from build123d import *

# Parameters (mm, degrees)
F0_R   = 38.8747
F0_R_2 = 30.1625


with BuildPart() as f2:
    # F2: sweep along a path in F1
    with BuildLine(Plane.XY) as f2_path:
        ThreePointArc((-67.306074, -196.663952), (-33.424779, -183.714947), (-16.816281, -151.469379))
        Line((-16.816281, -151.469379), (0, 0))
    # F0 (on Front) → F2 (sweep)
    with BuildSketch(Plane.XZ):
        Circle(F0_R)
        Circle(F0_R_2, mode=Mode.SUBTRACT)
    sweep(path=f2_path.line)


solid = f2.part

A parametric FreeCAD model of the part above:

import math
import FreeCAD as App
import Part
import Sketcher
Q = App.Units.Quantity

doc = App.newDocument("Part")
body = doc.addObject("PartDesign::Body", "Body")

# Sketch on XZ plane
sketch1 = doc.addObject("Sketcher::SketchObject", "Sketch")
body.addObject(sketch1)
sketch1.AttachmentSupport = (doc.XZ_Plane, [""])
sketch1.MapMode = "FlatFace"
sketch1.addGeometry(Part.Circle(App.Vector(0, 0, 0), App.Vector(0, 0, 1), 39), False)
sketch1.addGeometry(Part.Circle(App.Vector(0, 0, 0), App.Vector(0, 0, 1), 30), False)
sketch1.addConstraint(Sketcher.Constraint("Coincident", 0, 3, -1, 1))
sketch1.addConstraint(Sketcher.Constraint("Coincident", 1, 3, -1, 1))
sketch1.addConstraint(Sketcher.Constraint("Diameter", 0, Q("3.061 in")))
sketch1.addConstraint(Sketcher.Constraint("Diameter", 1, Q("2.375 in")))

# Sketch on XY plane
sketch2 = doc.addObject("Sketcher::SketchObject", "Sketch001")
body.addObject(sketch2)
sketch2.AttachmentSupport = (doc.XY_Plane, [""])
sketch2.MapMode = "FlatFace"
sketch2.addGeometry(Part.ArcOfCircle(Part.Circle(App.Vector(-67, -146, 0), App.Vector(0, 0, 1), 51), math.radians(-90), math.radians(-6)), False)
sketch2.addGeometry(Part.LineSegment(App.Vector(-17, -151, 0), App.Vector(0, 0, 0)), False)
sketch2.addConstraint(Sketcher.Constraint("Tangent", 0, 2, 1, 1))
sketch2.addConstraint(Sketcher.Constraint("Coincident", 1, 2, -1, 1))
sketch2.addConstraint(Sketcher.Constraint("Radius", 0, Q("2 in")))
sketch2.addConstraint(Sketcher.Constraint("Distance", 1, Q("6 in")))
sketch2.addConstraint(Sketcher.Constraint("DistanceY", 0, 3, -1, 1, Q("145.863951 mm")))
sketch2.addConstraint(Sketcher.Constraint("DistanceX", 0, 1, -1, 1, Q("67.306074 mm")))
doc.recompute()

additivepipe = doc.addObject("PartDesign::AdditivePipe", "AdditivePipe")
body.addObject(additivepipe)
additivepipe.Profile = sketch1
additivepipe.Spine = (sketch2, ["Edge1", "Edge2"])

doc.recompute()
